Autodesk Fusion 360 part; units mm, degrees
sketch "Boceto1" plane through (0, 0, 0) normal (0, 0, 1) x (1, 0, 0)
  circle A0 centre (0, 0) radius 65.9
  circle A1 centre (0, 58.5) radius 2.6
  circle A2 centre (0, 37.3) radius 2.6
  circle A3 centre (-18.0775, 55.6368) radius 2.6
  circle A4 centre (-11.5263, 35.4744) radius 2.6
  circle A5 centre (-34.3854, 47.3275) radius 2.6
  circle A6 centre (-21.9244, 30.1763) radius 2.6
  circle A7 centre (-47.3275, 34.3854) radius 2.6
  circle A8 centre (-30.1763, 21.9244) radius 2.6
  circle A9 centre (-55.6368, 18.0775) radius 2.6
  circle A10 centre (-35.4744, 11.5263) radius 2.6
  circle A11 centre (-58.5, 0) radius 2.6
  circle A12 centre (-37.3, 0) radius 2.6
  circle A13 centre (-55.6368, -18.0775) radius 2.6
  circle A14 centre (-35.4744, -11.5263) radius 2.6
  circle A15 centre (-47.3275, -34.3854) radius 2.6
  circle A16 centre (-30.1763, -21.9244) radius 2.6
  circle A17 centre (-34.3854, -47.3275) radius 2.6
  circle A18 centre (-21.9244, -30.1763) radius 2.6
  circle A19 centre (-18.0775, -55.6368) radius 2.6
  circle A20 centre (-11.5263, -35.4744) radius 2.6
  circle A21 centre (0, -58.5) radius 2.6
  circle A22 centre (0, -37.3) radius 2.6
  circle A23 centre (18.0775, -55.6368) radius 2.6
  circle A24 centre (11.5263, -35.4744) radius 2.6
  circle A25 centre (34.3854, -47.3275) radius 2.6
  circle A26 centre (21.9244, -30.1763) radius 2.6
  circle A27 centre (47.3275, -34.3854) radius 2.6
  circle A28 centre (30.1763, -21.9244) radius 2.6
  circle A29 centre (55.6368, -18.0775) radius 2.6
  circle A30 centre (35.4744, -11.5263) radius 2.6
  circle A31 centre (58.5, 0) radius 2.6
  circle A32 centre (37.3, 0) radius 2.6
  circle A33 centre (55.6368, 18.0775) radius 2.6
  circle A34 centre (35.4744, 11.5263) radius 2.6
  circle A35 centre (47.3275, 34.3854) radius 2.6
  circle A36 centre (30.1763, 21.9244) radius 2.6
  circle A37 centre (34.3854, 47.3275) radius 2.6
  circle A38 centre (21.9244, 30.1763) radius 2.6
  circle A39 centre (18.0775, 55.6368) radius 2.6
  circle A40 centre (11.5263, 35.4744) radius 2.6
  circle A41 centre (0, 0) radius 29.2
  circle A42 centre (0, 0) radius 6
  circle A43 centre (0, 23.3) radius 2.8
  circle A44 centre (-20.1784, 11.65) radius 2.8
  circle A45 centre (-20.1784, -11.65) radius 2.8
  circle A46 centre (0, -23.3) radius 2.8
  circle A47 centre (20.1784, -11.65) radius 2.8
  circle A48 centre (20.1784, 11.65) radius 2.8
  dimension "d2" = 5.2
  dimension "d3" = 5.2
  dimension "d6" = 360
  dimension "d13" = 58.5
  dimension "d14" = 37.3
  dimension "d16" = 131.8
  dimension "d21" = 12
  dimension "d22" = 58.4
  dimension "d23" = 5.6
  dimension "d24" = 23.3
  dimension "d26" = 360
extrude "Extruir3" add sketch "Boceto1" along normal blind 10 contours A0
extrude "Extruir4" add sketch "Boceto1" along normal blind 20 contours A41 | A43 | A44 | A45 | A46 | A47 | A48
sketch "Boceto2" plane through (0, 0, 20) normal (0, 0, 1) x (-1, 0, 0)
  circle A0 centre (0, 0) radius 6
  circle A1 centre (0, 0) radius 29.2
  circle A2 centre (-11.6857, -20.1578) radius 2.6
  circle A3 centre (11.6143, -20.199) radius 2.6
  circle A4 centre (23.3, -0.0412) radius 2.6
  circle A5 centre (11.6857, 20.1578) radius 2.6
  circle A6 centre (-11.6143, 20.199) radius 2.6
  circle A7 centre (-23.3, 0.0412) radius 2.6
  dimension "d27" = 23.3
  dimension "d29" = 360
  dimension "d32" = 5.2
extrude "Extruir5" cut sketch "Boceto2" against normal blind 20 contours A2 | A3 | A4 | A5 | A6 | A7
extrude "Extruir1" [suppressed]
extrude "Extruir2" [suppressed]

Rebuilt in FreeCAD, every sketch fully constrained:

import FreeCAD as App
import Part
import Sketcher

V = App.Vector
Q = App.Units.Quantity

doc = App.newDocument("Part")
body = doc.addObject("PartDesign::Body", "Body")

# Sketch on XY plane
sketch1 = body.newObject("Sketcher::SketchObject", "Sketch")
sketch1.AttachmentSupport = (doc.getObject("XY_Plane"), [""])
sketch1.MapMode = "FlatFace"
sketch1.addGeometry(Part.Circle(V(0, 0, 0), V(0, 0, 1), 65.9), False)
sketch1.addGeometry(Part.Circle(V(-34.4, -47.3, 0), V(0, 0, 1), 2.6), False)
sketch1.addGeometry(Part.Circle(V(-47.3, -34.4, 0), V(0, 0, 1), 2.6), False)
sketch1.addGeometry(Part.Circle(V(-18.1, -55.6, 0), V(0, 0, 1), 2.6), False)
sketch1.addGeometry(Part.Circle(V(-11.5, -35.5, 0), V(0, 0, 1), 2.6), False)
sketch1.addGeometry(Part.Circle(V(-55.6, -18.1, 0), V(0, 0, 1), 2.6), False)
sketch1.addGeometry(Part.Circle(V(-35.5, -11.5, 0), V(0, 0, 1), 2.6), False)
sketch1.addGeometry(Part.Circle(V(-21.9, -30.2, 0), V(0, 0, 1), 2.6), False)
sketch1.addGeometry(Part.Circle(V(-30.2, -21.9, 0), V(0, 0, 1), 2.6), False)
sketch1.addGeometry(Part.Circle(V(0, -58.5, 0), V(0, 0, 1), 2.6), False)
sketch1.addGeometry(Part.Circle(V(18.1, -55.6, 0), V(0, 0, 1), 2.6), False)
sketch1.addGeometry(Part.Circle(V(0, -37.3, 0), V(0, 0, 1), 2.6), False)
sketch1.addGeometry(Part.Circle(V(11.5, -35.5, 0), V(0, 0, 1), 2.6), False)
sketch1.addGeometry(Part.Circle(V(34.4, -47.3, 0), V(0, 0, 1), 2.6), False)
sketch1.addGeometry(Part.Circle(V(47.3, -34.4, 0), V(0, 0, 1), 2.6), False)
sketch1.addGeometry(Part.Circle(V(21.9, -30.2, 0), V(0, 0, 1), 2.6), False)
sketch1.addGeometry(Part.Circle(V(30.2, -21.9, 0), V(0, 0, 1), 2.6), False)
sketch1.addGeometry(Part.Circle(V(55.6, -18.1, 0), V(0, 0, 1), 2.6), False)
sketch1.addGeometry(Part.Circle(V(35.5, -11.5, 0), V(0, 0, 1), 2.6), False)
sketch1.addGeometry(Part.Circle(V(-58.5, 0, 0), V(0, 0, 1), 2.6), False)
sketch1.addGeometry(Part.Circle(V(-37.3, 0, 0), V(0, 0, 1), 2.6), False)
sketch1.addGeometry(Part.Circle(V(-35.5, 11.5, 0), V(0, 0, 1), 2.6), False)
sketch1.addGeometry(Part.Circle(V(-55.6, 18.1, 0), V(0, 0, 1), 2.6), False)
sketch1.addGeometry(Part.Circle(V(-30.2, 21.9, 0), V(0, 0, 1), 2.6), False)
sketch1.addGeometry(Part.Circle(V(-21.9, 30.2, 0), V(0, 0, 1), 2.6), False)
sketch1.addGeometry(Part.Circle(V(-47.3, 34.4, 0), V(0, 0, 1), 2.6), False)
sketch1.addGeometry(Part.Circle(V(-34.4, 47.3, 0), V(0, 0, 1), 2.6), False)
sketch1.addGeometry(Part.Circle(V(-11.5, 35.5, 0), V(0, 0, 1), 2.6), False)
sketch1.addGeometry(Part.Circle(V(-18.1, 55.6, 0), V(0, 0, 1), 2.6), False)
sketch1.addGeometry(Part.Circle(V(0, 0, 0), V(0, 0, 1), 29.2), False)
sketch1.addGeometry(Part.Circle(V(30.2, 21.9, 0), V(0, 0, 1), 2.6), False)
sketch1.addGeometry(Part.Circle(V(21.9, 30.2, 0), V(0, 0, 1), 2.6), False)
sketch1.addGeometry(Part.Circle(V(37.3, 0, 0), V(0, 0, 1), 2.6), False)
sketch1.addGeometry(Part.Circle(V(35.5, 11.5, 0), V(0, 0, 1), 2.6), False)
sketch1.addGeometry(Part.Circle(V(58.5, 0, 0), V(0, 0, 1), 2.6), False)
sketch1.addGeometry(Part.Circle(V(55.6, 18.1, 0), V(0, 0, 1), 2.6), False)
sketch1.addGeometry(Part.Circle(V(0, 37.3, 0), V(0, 0, 1), 2.6), False)
sketch1.addGeometry(Part.Circle(V(11.5, 35.5, 0), V(0, 0, 1), 2.6), False)
sketch1.addGeometry(Part.Circle(V(0, 58.5, 0), V(0, 0, 1), 2.6), False)
sketch1.addGeometry(Part.Circle(V(18.1, 55.6, 0), V(0, 0, 1), 2.6), False)
sketch1.addGeometry(Part.Circle(V(47.3, 34.4, 0), V(0, 0, 1), 2.6), False)
sketch1.addGeometry(Part.Circle(V(34.4, 47.3, 0), V(0, 0, 1), 2.6), False)
sketch1.addConstraint(Sketcher.Constraint("Coincident", 0, 3, -1, 1))
sketch1.addConstraint(Sketcher.Constraint("Coincident", 29, 3, -1, 1))
sketch1.addConstraint(Sketcher.Constraint("Equal", 1, 2))
sketch1.addConstraint(Sketcher.Constraint("Equal", 2, 3))
sketch1.addConstraint(Sketcher.Constraint("Equal", 3, 4))
sketch1.addConstraint(Sketcher.Constraint("Equal", 4, 5))
sketch1.addConstraint(Sketcher.Constraint("Equal", 5, 6))
sketch1.addConstraint(Sketcher.Constraint("Equal", 6, 7))
sketch1.addConstraint(Sketcher.Constraint("Equal", 7, 8))
sketch1.addConstraint(Sketcher.Constraint("Equal", 8, 9))
sketch1.addConstraint(Sketcher.Constraint("Equal", 9, 10))
sketch1.addConstraint(Sketcher.Constraint("Equal", 10, 11))
sketch1.addConstraint(Sketcher.Constraint("Equal", 11, 12))
sketch1.addConstraint(Sketcher.Constraint("Equal", 12, 13))
sketch1.addConstraint(Sketcher.Constraint("Equal", 13, 14))
sketch1.addConstraint(Sketcher.Constraint("Equal", 14, 15))
sketch1.addConstraint(Sketcher.Constraint("Equal", 15, 16))
sketch1.addConstraint(Sketcher.Constraint("Equal", 16, 17))
sketch1.addConstraint(Sketcher.Constraint("Equal", 17, 18))
sketch1.addConstraint(Sketcher.Constraint("Equal", 18, 19))
sketch1.addConstraint(Sketcher.Constraint("Equal", 19, 20))
sketch1.addConstraint(Sketcher.Constraint("Equal", 20, 21))
sketch1.addConstraint(Sketcher.Constraint("Equal", 21, 22))
sketch1.addConstraint(Sketcher.Constraint("Equal", 22, 23))
sketch1.addConstraint(Sketcher.Constraint("Equal", 23, 24))
sketch1.addConstraint(Sketcher.Constraint("Equal", 24, 25))
sketch1.addConstraint(Sketcher.Constraint("Equal", 25, 26))
sketch1.addConstraint(Sketcher.Constraint("Equal", 26, 27))
sketch1.addConstraint(Sketcher.Constraint("Equal", 27, 28))
sketch1.addConstraint(Sketcher.Constraint("Equal", 28, 30))
sketch1.addConstraint(Sketcher.Constraint("Equal", 30, 31))
sketch1.addConstraint(Sketcher.Constraint("Equal", 31, 32))
sketch1.addConstraint(Sketcher.Constraint("Equal", 32, 33))
sketch1.addConstraint(Sketcher.Constraint("Equal", 33, 34))
sketch1.addConstraint(Sketcher.Constraint("Equal", 34, 35))
sketch1.addConstraint(Sketcher.Constraint("Equal", 35, 36))
sketch1.addConstraint(Sketcher.Constraint("Equal", 36, 37))
sketch1.addConstraint(Sketcher.Constraint("Equal", 37, 38))
sketch1.addConstraint(Sketcher.Constraint("Equal", 38, 39))
sketch1.addConstraint(Sketcher.Constraint("Equal", 39, 40))
sketch1.addConstraint(Sketcher.Constraint("Equal", 40, 41))
sketch1.addConstraint(Sketcher.Constraint("Symmetric", 18, 3, 21, 3, -1, 1))
sketch1.addConstraint(Sketcher.Constraint("Symmetric", 17, 3, 22, 3, -1, 1))
sketch1.addConstraint(Sketcher.Constraint("Symmetric", 16, 3, 23, 3, -1, 1))
sketch1.addConstraint(Sketcher.Constraint("Symmetric", 15, 3, 24, 3, -1, 1))
sketch1.addConstraint(Sketcher.Constraint("Symmetric", 14, 3, 25, 3, -1, 1))
sketch1.addConstraint(Sketcher.Constraint("Symmetric", 13, 3, 26, 3, -1, 1))
sketch1.addConstraint(Sketcher.Constraint("Symmetric", 12, 3, 27, 3, -1, 1))
sketch1.addConstraint(Sketcher.Constraint("Symmetric", 10, 3, 28, 3, -1, 1))
sketch1.addConstraint(Sketcher.Constraint("Symmetric", 8, 3, 30, 3, -1, 1))
sketch1.addConstraint(Sketcher.Constraint("Symmetric", 7, 3, 31, 3, -1, 1))
sketch1.addConstraint(Sketcher.Constraint("Symmetric", 20, 3, 32, 3, -1, 1))
sketch1.addConstraint(Sketcher.Constraint("Symmetric", 6, 3, 33, 3, -1, 1))
sketch1.addConstraint(Sketcher.Constraint("Symmetric", 19, 3, 34, 3, -1, 1))
sketch1.addConstraint(Sketcher.Constraint("Symmetric", 5, 3, 35, 3, -1, 1))
sketch1.addConstraint(Sketcher.Constraint("Symmetric", 11, 3, 36, 3, -1, 1))
sketch1.addConstraint(Sketcher.Constraint("Symmetric", 4, 3, 37, 3, -1, 1))
sketch1.addConstraint(Sketcher.Constraint("Symmetric", 9, 3, 38, 3, -1, 1))
sketch1.addConstraint(Sketcher.Constraint("Symmetric", 3, 3, 39, 3, -1, 1))
sketch1.addConstraint(Sketcher.Constraint("Symmetric", 2, 3, 40, 3, -1, 1))
sketch1.addConstraint(Sketcher.Constraint("Symmetric", 1, 3, 41, 3, -1, 1))
sketch1.addConstraint(Sketcher.Constraint("Symmetric", 3, 3, 10, 3, -2))
sketch1.addConstraint(Sketcher.Constraint("Symmetric", 4, 3, 12, 3, -2))
sketch1.addConstraint(Sketcher.Constraint("Symmetric", 1, 3, 13, 3, -2))
sketch1.addConstraint(Sketcher.Constraint("Symmetric", 2, 3, 14, 3, -2))
sketch1.addConstraint(Sketcher.Constraint("Symmetric", 7, 3, 15, 3, -2))
sketch1.addConstraint(Sketcher.Constraint("Symmetric", 8, 3, 16, 3, -2))
sketch1.addConstraint(Sketcher.Constraint("Symmetric", 5, 3, 17, 3, -2))
sketch1.addConstraint(Sketcher.Constraint("Symmetric", 6, 3, 18, 3, -2))
sketch1.addConstraint(Sketcher.Constraint("PointOnObject", 9, 3, -2))
sketch1.addConstraint(Sketcher.Constraint("PointOnObject", 11, 3, -2))
sketch1.addConstraint(Sketcher.Constraint("PointOnObject", 19, 3, -1))
sketch1.addConstraint(Sketcher.Constraint("PointOnObject", 20, 3, -1))
sketch1.addConstraint(Sketcher.Constraint("Diameter", 0, Q("131.8 mm")))
sketch1.addConstraint(Sketcher.Constraint("Diameter", 1, Q("5.2 mm")))
sketch1.addConstraint(Sketcher.Constraint("Diameter", 29, Q("58.4 mm")))
sketch1.addConstraint(Sketcher.Constraint("DistanceY", 9, 3, -1, 1, Q("58.5 mm")))
sketch1.addConstraint(Sketcher.Constraint("DistanceY", 11, 3, -1, 1, Q("37.3 mm")))
sketch1.addConstraint(Sketcher.Constraint("DistanceX", 19, 3, -1, 1, Q("58.5 mm")))
sketch1.addConstraint(Sketcher.Constraint("DistanceX", 20, 3, -1, 1, Q("37.3 mm")))
sketch1.addConstraint(Sketcher.Constraint("DistanceX", 2, 3, 3, 3, Q("29.25 mm")))
sketch1.addConstraint(Sketcher.Constraint("DistanceY", 1, 3, 5, 3, Q("29.25 mm")))
sketch1.addConstraint(Sketcher.Constraint("DistanceX", 6, 3, 7, 3, Q("13.55 mm")))
sketch1.addConstraint(Sketcher.Constraint("DistanceY", 7, 3, 6, 3, Q("18.65 mm")))
sketch1.addConstraint(Sketcher.Constraint("DistanceX", 8, 3, 4, 3, Q("18.65 mm")))
sketch1.addConstraint(Sketcher.Constraint("DistanceY", 4, 3, 8, 3, Q("13.55 mm")))
sketch1.addConstraint(Sketcher.Constraint("DistanceX", 2, 3, 1, 3, Q("12.942 mm")))
sketch1.addConstraint(Sketcher.Constraint("DistanceY", 1, 3, 2, 3, Q("12.942 mm")))
sketch1.addConstraint(Sketcher.Constraint("DistanceX", 1, 3, 4, 3, Q("22.859 mm")))
sketch1.addConstraint(Sketcher.Constraint("DistanceY", 1, 3, 4, 3, Q("11.853 mm")))
sketch1.addConstraint(Sketcher.Constraint("DistanceX", 2, 3, 6, 3, Q("11.853 mm")))
sketch1.addConstraint(Sketcher.Constraint("DistanceY", 2, 3, 6, 3, Q("22.859 mm")))
sketch1.addConstraint(Sketcher.Constraint("DistanceX", 3, 3, 10, 3, Q("36.155 mm")))
sketch1.addConstraint(Sketcher.Constraint("DistanceY", 5, 3, 22, 3, Q("36.155 mm")))
sketch1.addConstraint(Sketcher.Constraint("DistanceY", 3, 3, -1, 1, Q("55.6368 mm")))
sketch1.addConstraint(Sketcher.Constraint("DistanceX", 5, 3, -1, 1, Q("55.6368 mm")))
pad1 = body.newObject("PartDesign::Pad", "Pad")
pad1.Profile = sketch1
pad1.Length = 10

# Sketch on XY plane
sketch2 = body.newObject("Sketcher::SketchObject", "Sketch001")
sketch2.AttachmentSupport = (doc.getObject("XY_Plane"), [""])
sketch2.MapMode = "FlatFace"
sketch2.addGeometry(Part.Circle(V(0, 0, 0), V(0, 0, 1), 29), False)
sketch2.addGeometry(Part.Circle(V(0, 0, 0), V(0, 0, 1), 6), False)
sketch2.addConstraint(Sketcher.Constraint("Coincident", 0, 3, -1, 1))
sketch2.addConstraint(Sketcher.Constraint("Coincident", 1, 3, -1, 1))
sketch2.addConstraint(Sketcher.Constraint("Diameter", 1, Q("12 mm")))
sketch2.addConstraint(Sketcher.Constraint("Diameter", 0, Q("58.4 mm")))
pad2 = body.newObject("PartDesign::Pad", "Pad001")
pad2.Profile = sketch2
pad2.Length = 20

# Sketch on XY plane
sketch3 = body.newObject("Sketcher::SketchObject", "Sketch002")
sketch3.AttachmentSupport = (doc.getObject("XY_Plane"), [""])
sketch3.MapMode = "FlatFace"
sketch3.AttachmentOffset = App.Placement(V(0, 0, 20), App.Rotation())
sketch3.addGeometry(Part.Circle(V(11.7, 20.2, 0), V(0, 0, 1), 2.6), False)
sketch3.addGeometry(Part.Circle(V(-11.6, 20.2, 0), V(0, 0, 1), 2.6), False)
sketch3.addGeometry(Part.Circle(V(-23.3, 0, 0), V(0, 0, 1), 2.6), False)
sketch3.addGeometry(Part.Circle(V(-11.7, -20.2, 0), V(0, 0, 1), 2.6), False)
sketch3.addGeometry(Part.Circle(V(11.6, -20.2, 0), V(0, 0, 1), 2.6), False)
sketch3.addGeometry(Part.Circle(V(23.3, 0, 0), V(0, 0, 1), 2.6), False)
sketch3.addConstraint(Sketcher.Constraint("Equal", 0, 1))
sketch3.addConstraint(Sketcher.Constraint("Equal", 1, 2))
sketch3.addConstraint(Sketcher.Constraint("Equal", 2, 3))
sketch3.addConstraint(Sketcher.Constraint("Equal", 3, 4))
sketch3.addConstraint(Sketcher.Constraint("Equal", 4, 5))
sketch3.addConstraint(Sketcher.Constraint("Symmetric", 0, 3, 3, 3, -1, 1))
sketch3.addConstraint(Sketcher.Constraint("Symmetric", 1, 3, 4, 3, -1, 1))
sketch3.addConstraint(Sketcher.Constraint("Symmetric", 2, 3, 5, 3, -1, 1))
sketch3.addConstraint(Sketcher.Constraint("Diameter", 0, Q("5.2 mm")))
sketch3.addConstraint(Sketcher.Constraint("DistanceX", 2, 3, -1, 1, Q("23.3 mm")))
sketch3.addConstraint(Sketcher.Constraint("DistanceX", 1, 3, 0, 3, Q("23.3 mm")))
sketch3.addConstraint(Sketcher.Constraint("DistanceY", -1, 1, 1, 3, Q("20.199 mm")))
sketch3.addConstraint(Sketcher.Constraint("DistanceY", 3, 3, 2, 3, Q("20.199 mm")))
sketch3.addConstraint(Sketcher.Constraint("DistanceX", -1, 1, 0, 3, Q("11.6857 mm")))
sketch3.addConstraint(Sketcher.Constraint("DistanceY", -1, 1, 0, 3, Q("20.1578 mm")))
pocket1 = body.newObject("PartDesign::Pocket", "Pocket")
pocket1.Profile = sketch3
pocket1.Length = 20

doc.recompute()
